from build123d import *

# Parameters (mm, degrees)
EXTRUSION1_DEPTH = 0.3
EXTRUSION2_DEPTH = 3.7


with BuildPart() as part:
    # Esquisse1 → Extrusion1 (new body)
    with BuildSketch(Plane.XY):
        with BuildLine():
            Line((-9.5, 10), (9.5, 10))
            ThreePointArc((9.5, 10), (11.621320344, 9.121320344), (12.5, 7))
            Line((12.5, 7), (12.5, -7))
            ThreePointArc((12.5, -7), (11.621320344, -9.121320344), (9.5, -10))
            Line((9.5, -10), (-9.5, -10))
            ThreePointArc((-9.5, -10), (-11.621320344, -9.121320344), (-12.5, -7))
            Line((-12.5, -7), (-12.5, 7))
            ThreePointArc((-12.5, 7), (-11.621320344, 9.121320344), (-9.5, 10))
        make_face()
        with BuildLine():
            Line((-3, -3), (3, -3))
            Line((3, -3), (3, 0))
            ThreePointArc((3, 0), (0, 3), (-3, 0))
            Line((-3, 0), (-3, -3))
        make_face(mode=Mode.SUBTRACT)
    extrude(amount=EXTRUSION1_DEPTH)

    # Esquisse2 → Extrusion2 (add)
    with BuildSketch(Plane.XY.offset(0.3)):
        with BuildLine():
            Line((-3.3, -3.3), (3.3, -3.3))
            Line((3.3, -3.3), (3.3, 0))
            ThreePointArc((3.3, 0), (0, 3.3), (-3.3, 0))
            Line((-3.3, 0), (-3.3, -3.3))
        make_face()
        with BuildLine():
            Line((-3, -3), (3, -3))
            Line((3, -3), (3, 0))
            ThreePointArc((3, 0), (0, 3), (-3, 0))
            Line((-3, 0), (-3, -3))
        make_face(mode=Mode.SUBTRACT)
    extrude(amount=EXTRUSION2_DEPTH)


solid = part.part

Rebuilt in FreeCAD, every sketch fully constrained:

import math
import FreeCAD as App
import Part
import Sketcher

V = App.Vector

doc = App.newDocument("Part")
params = doc.addObject("Spreadsheet::Sheet", "Params")
for row, (alias, value) in enumerate([
    ("sketch1_radius", "3 mm"),
    ("sketch1_width", "19 mm"),
    ("sketch1_height", "14 mm"),
    ("sketch1_height2", "3 mm"),
    ("pad1_length", "0.3 mm"),
    ("sketch2_radius", "3 mm"),
    ("sketch2_radius2", "3.3 mm"),
    ("sketch2_height", "3 mm"),
    ("sketch2_height2", "3.3 mm"),
    ("pad2_length", "3.7 mm"),
], start=1):
    params.set(f"A{row}", alias)
    params.set(f"B{row}", "=" + value)
    params.setAlias(f"B{row}", alias)

body = doc.addObject("PartDesign::Body", "Body")

# Sketch on XY plane
sketch1 = body.newObject("Sketcher::SketchObject", "Sketch")
sketch1.AttachmentSupport = (doc.getObject("XY_Plane"), [""])
sketch1.MapMode = "FlatFace"
sketch1.addGeometry([
    Part.LineSegment(V(9.5, 10, 0), V(-9.5, 10, 0)),  # 0
    Part.ArcOfCircle(Part.Circle(V(-9.5, 7, 0), V(0, 0, 1), 3), math.radians(90), math.radians(180)),  # 1
    Part.LineSegment(V(-12.5, 7, 0), V(-12.5, -7, 0)),  # 2
    Part.ArcOfCircle(Part.Circle(V(-9.5, -7, 0), V(0, 0, 1), 3), math.radians(180), math.radians(270)),  # 3
    Part.LineSegment(V(-9.5, -10, 0), V(9.5, -10, 0)),  # 4
    Part.ArcOfCircle(Part.Circle(V(9.5, -7, 0), V(0, 0, 1), 3), math.radians(-90), math.radians(0)),  # 5
    Part.LineSegment(V(12.5, -7, 0), V(12.5, 7, 0)),  # 6
    Part.ArcOfCircle(Part.Circle(V(9.5, 7, 0), V(0, 0, 1), 3), math.radians(0), math.radians(90)),  # 7
    Part.LineSegment(V(-3, -3, 0), V(-3, 0, 0)),  # 8
    Part.ArcOfCircle(Part.Circle(V(0, 0, 0), V(0, 0, 1), 3), math.radians(0), math.radians(180)),  # 9
    Part.LineSegment(V(3, 0, 0), V(3, -3, 0)),  # 10
    Part.LineSegment(V(3, -3, 0), V(-3, -3, 0)),  # 11
], False)
sketch1.addConstraint([
    Sketcher.Constraint("Tangent", 0, 2, 1, 1),
    Sketcher.Constraint("Tangent", 1, 2, 2, 1),
    Sketcher.Constraint("Tangent", 2, 2, 3, 1),
    Sketcher.Constraint("Tangent", 3, 2, 4, 1),
    Sketcher.Constraint("Tangent", 4, 2, 5, 1),
    Sketcher.Constraint("Tangent", 5, 2, 6, 1),
    Sketcher.Constraint("Tangent", 6, 2, 7, 1),
    Sketcher.Constraint("Tangent", 7, 2, 0, 1),
    Sketcher.Constraint("Tangent", 8, 2, 9, 2),
    Sketcher.Constraint("Tangent", 9, 1, 10, 1),
    Sketcher.Constraint("Coincident", 10, 2, 11, 1),
    Sketcher.Constraint("Coincident", 11, 2, 8, 1),
    Sketcher.Constraint("Horizontal", 0),
    Sketcher.Constraint("Vertical", 2),
    Sketcher.Constraint("Horizontal", 4),
    Sketcher.Constraint("Vertical", 6),
    Sketcher.Constraint("Vertical", 8),
    Sketcher.Constraint("Vertical", 10),
    Sketcher.Constraint("Horizontal", 11),
    Sketcher.Constraint("Coincident", 9, 3, -1, 1),
    Sketcher.Constraint("Equal", 1, 3),
    Sketcher.Constraint("Equal", 3, 5),
    Sketcher.Constraint("Equal", 5, 7),
    Sketcher.Constraint("Equal", 7, 9),
    Sketcher.Constraint("Symmetric", 1, 3, 5, 3, -1, 1),
    Sketcher.Constraint("Radius", 1, 3.0),
    Sketcher.Constraint("DistanceX", 0, 2, 0, 1, 19.0),
    Sketcher.Constraint("DistanceY", 2, 2, 2, 1, 14.0),
    Sketcher.Constraint("DistanceY", 8, 1, 8, 2, 3.0),
])
sketch1.setExpression("Constraints[25]", "Params.sketch1_radius")
sketch1.setExpression("Constraints[26]", "Params.sketch1_width")
sketch1.setExpression("Constraints[27]", "Params.sketch1_height")
sketch1.setExpression("Constraints[28]", "Params.sketch1_height2")
pad1 = body.newObject("PartDesign::Pad", "Pad")
pad1.Profile = sketch1
pad1.setExpression("Length", "Params.pad1_length")

# Sketch on XY plane
sketch2 = body.newObject("Sketcher::SketchObject", "Sketch001")
sketch2.AttachmentSupport = (doc.getObject("XY_Plane"), [""])
sketch2.MapMode = "FlatFace"
sketch2.AttachmentOffset = App.Placement(V(0, 0, 0.3), App.Rotation())
sketch2.addGeometry([
    Part.LineSegment(V(-3.3, -3.3, 0), V(3.3, -3.3, 0)),  # 0
    Part.LineSegment(V(3.3, -3.3, 0), V(3.3, 0, 0)),  # 1
    Part.ArcOfCircle(Part.Circle(V(0, 0, 0), V(0, 0, 1), 3.3), math.radians(0), math.radians(180)),  # 2
    Part.LineSegment(V(-3.3, 0, 0), V(-3.3, -3.3, 0)),  # 3
    Part.LineSegment(V(3, -3, 0), V(-3, -3, 0)),  # 4
    Part.LineSegment(V(-3, -3, 0), V(-3, 0, 0)),  # 5
    Part.ArcOfCircle(Part.Circle(V(0, 0, 0), V(0, 0, 1), 3), math.radians(0), math.radians(180)),  # 6
    Part.LineSegment(V(3, 0, 0), V(3, -3, 0)),  # 7
], False)
sketch2.addConstraint([
    Sketcher.Constraint("Coincident", 0, 2, 1, 1),
    Sketcher.Constraint("Tangent", 1, 2, 2, 1),
    Sketcher.Constraint("Tangent", 2, 2, 3, 1),
    Sketcher.Constraint("Coincident", 3, 2, 0, 1),
    Sketcher.Constraint("Coincident", 4, 2, 5, 1),
    Sketcher.Constraint("Tangent", 5, 2, 6, 2),
    Sketcher.Constraint("Tangent", 6, 1, 7, 1),
    Sketcher.Constraint("Coincident", 7, 2, 4, 1),
    Sketcher.Constraint("Horizontal", 0),
    Sketcher.Constraint("Vertical", 1),
    Sketcher.Constraint("Vertical", 3),
    Sketcher.Constraint("Horizontal", 4),
    Sketcher.Constraint("Vertical", 5),
    Sketcher.Constraint("Vertical", 7),
    Sketcher.Constraint("Coincident", 2, 3, -1, 1),
    Sketcher.Constraint("Coincident", 6, 3, -1, 1),
    Sketcher.Constraint("Radius", 6, 3.0),
    Sketcher.Constraint("Radius", 2, 3.3),
    Sketcher.Constraint("DistanceY", 5, 1, 5, 2, 3.0),
    Sketcher.Constraint("DistanceY", 1, 1, 1, 2, 3.3),
])
sketch2.setExpression("Constraints[16]", "Params.sketch2_radius")
sketch2.setExpression("Constraints[17]", "Params.sketch2_radius2")
sketch2.setExpression("Constraints[18]", "Params.sketch2_height")
sketch2.setExpression("Constraints[19]", "Params.sketch2_height2")
pad2 = body.newObject("PartDesign::Pad", "Pad001")
pad2.Profile = sketch2
pad2.setExpression("Length", "Params.pad2_length")

doc.recompute()
